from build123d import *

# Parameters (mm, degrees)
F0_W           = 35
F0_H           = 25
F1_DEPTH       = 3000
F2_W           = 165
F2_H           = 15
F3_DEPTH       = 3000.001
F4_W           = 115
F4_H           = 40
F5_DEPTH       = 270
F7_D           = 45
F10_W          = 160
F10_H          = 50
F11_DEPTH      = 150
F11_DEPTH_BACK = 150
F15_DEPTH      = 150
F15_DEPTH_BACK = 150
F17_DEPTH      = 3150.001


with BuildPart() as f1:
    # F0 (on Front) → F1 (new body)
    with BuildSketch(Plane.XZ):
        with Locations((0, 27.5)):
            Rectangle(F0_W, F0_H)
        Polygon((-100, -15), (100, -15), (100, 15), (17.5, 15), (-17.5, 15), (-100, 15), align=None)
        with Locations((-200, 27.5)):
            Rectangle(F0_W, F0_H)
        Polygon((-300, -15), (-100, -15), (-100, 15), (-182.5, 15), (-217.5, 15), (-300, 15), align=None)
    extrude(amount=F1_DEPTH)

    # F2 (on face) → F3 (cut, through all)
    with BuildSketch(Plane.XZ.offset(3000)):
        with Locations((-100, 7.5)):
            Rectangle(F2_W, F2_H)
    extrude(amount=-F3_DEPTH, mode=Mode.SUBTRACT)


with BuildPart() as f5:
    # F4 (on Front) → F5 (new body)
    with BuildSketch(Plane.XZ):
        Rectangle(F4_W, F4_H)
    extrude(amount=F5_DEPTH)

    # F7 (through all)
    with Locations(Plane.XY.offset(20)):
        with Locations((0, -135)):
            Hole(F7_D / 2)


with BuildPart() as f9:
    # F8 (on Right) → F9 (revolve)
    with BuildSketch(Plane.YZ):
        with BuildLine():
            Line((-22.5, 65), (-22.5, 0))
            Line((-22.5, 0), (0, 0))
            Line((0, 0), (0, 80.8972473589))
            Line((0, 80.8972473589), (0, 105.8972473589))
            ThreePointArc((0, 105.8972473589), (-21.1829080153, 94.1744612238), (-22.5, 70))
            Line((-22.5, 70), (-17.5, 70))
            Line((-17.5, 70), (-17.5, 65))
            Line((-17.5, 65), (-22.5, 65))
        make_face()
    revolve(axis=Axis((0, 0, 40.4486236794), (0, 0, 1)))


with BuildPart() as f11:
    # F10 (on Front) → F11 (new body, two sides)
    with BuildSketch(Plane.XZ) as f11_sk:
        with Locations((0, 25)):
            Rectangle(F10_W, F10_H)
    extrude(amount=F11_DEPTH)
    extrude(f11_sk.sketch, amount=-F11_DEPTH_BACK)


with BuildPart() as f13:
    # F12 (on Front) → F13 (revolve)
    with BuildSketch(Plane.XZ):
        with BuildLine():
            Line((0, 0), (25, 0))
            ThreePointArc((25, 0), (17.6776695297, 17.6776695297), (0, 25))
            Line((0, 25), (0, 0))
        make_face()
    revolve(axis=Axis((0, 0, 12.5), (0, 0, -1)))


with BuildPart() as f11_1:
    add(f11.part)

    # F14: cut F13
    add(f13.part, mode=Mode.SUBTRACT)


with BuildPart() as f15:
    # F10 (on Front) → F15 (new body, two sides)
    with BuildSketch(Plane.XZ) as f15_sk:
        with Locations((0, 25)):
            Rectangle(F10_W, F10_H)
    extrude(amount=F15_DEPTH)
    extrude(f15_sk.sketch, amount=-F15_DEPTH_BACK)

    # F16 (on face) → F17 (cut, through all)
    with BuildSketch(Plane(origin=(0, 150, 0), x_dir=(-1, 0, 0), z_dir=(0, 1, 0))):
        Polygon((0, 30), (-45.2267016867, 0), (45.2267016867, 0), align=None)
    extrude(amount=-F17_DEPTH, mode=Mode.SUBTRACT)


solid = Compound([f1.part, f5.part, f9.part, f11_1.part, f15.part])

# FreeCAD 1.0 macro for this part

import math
import FreeCAD as App
import Part
import Sketcher
from FreeCAD import Vector
Q = App.Units.Quantity


def add_polygon(sketch, points):
    """Adds a closed chain of lines whose ends are joined by coincident constraints."""
    first, n = sketch.GeometryCount, len(points)
    for a, b in zip(points, points[1:] + points[:1]):
        sketch.addGeometry(Part.LineSegment(App.Vector(*a, 0), App.Vector(*b, 0)), False)
    for i in range(n):
        sketch.addConstraint(Sketcher.Constraint("Coincident", first + i, 2, first + (i + 1) % n, 1))

doc = App.newDocument("Part")
body = doc.addObject("PartDesign::Body", "Body")

# Sketch on XZ plane
sketch1 = doc.addObject("Sketcher::SketchObject", "Sketch")
body.addObject(sketch1)
sketch1.AttachmentSupport = (doc.XZ_Plane, [""])
sketch1.MapMode = "FlatFace"
add_polygon(sketch1, [(-17.5, 40), (-17.5, 15), (-182.5, 15), (-182.5, 40), (-217.5, 40), (-217.5, 15), (-300, 15), (-300, -15), (100, -15), (100, 15), (17.5, 15), (17.5, 40)])  # lines 0-11
sketch1.addConstraint([
    Sketcher.Constraint("Vertical", 0),
    Sketcher.Constraint("Horizontal", 1),
    Sketcher.Constraint("Vertical", 2),
    Sketcher.Constraint("Horizontal", 3),
    Sketcher.Constraint("Vertical", 4),
    Sketcher.Constraint("Horizontal", 5),
    Sketcher.Constraint("Vertical", 6),
    Sketcher.Constraint("Horizontal", 7),
    Sketcher.Constraint("Vertical", 8),
    Sketcher.Constraint("Horizontal", 9),
    Sketcher.Constraint("Vertical", 10),
    Sketcher.Constraint("Horizontal", 11),
    Sketcher.Constraint("Symmetric", 0, 2, 9, 2, -2),
    Sketcher.Constraint("Horizontal", 1, 2, 4, 2),
    Sketcher.Constraint("Horizontal", 3, 2, 10, 2),
    Sketcher.Constraint("Equal", 5, 9),
    Sketcher.Constraint("Equal", 3, 11),
    Sketcher.Constraint("DistanceX", 1, 2, 1, 1, Q("165 mm")),
    Sketcher.Constraint("DistanceX", 3, 2, 3, 1, Q("35 mm")),
    Sketcher.Constraint("DistanceX", 7, 1, 7, 2, Q("400 mm")),
    Sketcher.Constraint("DistanceY", 0, 2, 0, 1, Q("25 mm")),
    Sketcher.Constraint("DistanceY", 6, 2, 6, 1, Q("30 mm")),
    Sketcher.Constraint("DistanceY", -1, 1, 0, 2, Q("15 mm")),
])
pad1 = doc.addObject("PartDesign::Pad", "Pad")
body.addObject(pad1)
pad1.Profile = sketch1
pad1.Length = 3000

# Sketch on XZ plane
sketch2 = doc.addObject("Sketcher::SketchObject", "Sketch001")
body.addObject(sketch2)
sketch2.AttachmentSupport = (doc.XZ_Plane, [""])
sketch2.MapMode = "FlatFace"
sketch2.AttachmentOffset = App.Placement(Vector(0, 0, 3000), App.Rotation())
add_polygon(sketch2, [(-182.5, 15), (-182.5, 0), (-17.5, 0), (-17.5, 15)])  # lines 0-3
sketch2.addConstraint([
    Sketcher.Constraint("Vertical", 0),
    Sketcher.Constraint("Horizontal", 1),
    Sketcher.Constraint("Vertical", 2),
    Sketcher.Constraint("Horizontal", 3),
    Sketcher.Constraint("PointOnObject", 0, 2, -1),
    Sketcher.Constraint("DistanceX", 1, 1, 1, 2, Q("165 mm")),
    Sketcher.Constraint("DistanceY", 0, 2, 0, 1, Q("15 mm")),
    Sketcher.Constraint("DistanceX", 0, 2, -1, 1, Q("182.5 mm")),
])
pocket1 = doc.addObject("PartDesign::Pocket", "Pocket")
body.addObject(pocket1)
pocket1.Profile = sketch2
pocket1.Type = "ThroughAll"
body2 = doc.addObject("PartDesign::Body", "Body001")

# Sketch on XZ plane
sketch3 = doc.addObject("Sketcher::SketchObject", "Sketch002")
body2.addObject(sketch3)
sketch3.AttachmentSupport = (doc.getObject("XZ_Plane001"), [""])
sketch3.MapMode = "FlatFace"
add_polygon(sketch3, [(-57.5, 20), (-57.5, -20), (57.5, -20), (57.5, 20)])  # lines 0-3
sketch3.addConstraint([
    Sketcher.Constraint("Vertical", 0),
    Sketcher.Constraint("Horizontal", 1),
    Sketcher.Constraint("Vertical", 2),
    Sketcher.Constraint("Horizontal", 3),
    Sketcher.Constraint("Symmetric", 0, 2, 2, 2, -1, 1),
    Sketcher.Constraint("DistanceX", 1, 1, 1, 2, Q("115 mm")),
    Sketcher.Constraint("DistanceY", 0, 2, 0, 1, Q("40 mm")),
])
pad2 = doc.addObject("PartDesign::Pad", "Pad001")
body2.addObject(pad2)
pad2.Profile = sketch3
pad2.Length = 270

# Sketch on XY plane
sketch4 = doc.addObject("Sketcher::SketchObject", "Sketch003")
body2.addObject(sketch4)
sketch4.AttachmentSupport = (doc.getObject("XY_Plane001"), [""])
sketch4.MapMode = "FlatFace"
sketch4.AttachmentOffset = App.Placement(Vector(0, 0, 20), App.Rotation())
sketch4.addGeometry(Part.Circle(Vector(0, -135, 0), Vector(0, 0, 1), 22.5), False)
sketch4.addConstraint([
    Sketcher.Constraint("PointOnObject", 0, 3, -2),
    Sketcher.Constraint("Diameter", 0, Q("45 mm")),
    Sketcher.Constraint("DistanceY", 0, 3, -1, 1, Q("135 mm")),
])
doc.recompute()
hole = doc.addObject("PartDesign::Hole", "Hole")
body2.addObject(hole)
hole.Profile = sketch4
hole.ThreadType = "None"
hole.Diameter = 45
hole.DepthType = "ThroughAll"
body3 = doc.addObject("PartDesign::Body", "Body002")

# Sketch on YZ plane
sketch5 = doc.addObject("Sketcher::SketchObject", "Sketch004")
body3.addObject(sketch5)
sketch5.AttachmentSupport = (doc.getObject("YZ_Plane002"), [""])
sketch5.MapMode = "FlatFace"
sketch5.addGeometry([
    Part.LineSegment(Vector(-22.5, 65, 0), Vector(-22.5, 0, 0)),  # 0
    Part.LineSegment(Vector(-22.5, 0, 0), Vector(0, 0, 0)),  # 1
    Part.LineSegment(Vector(0, 0, 0), Vector(0, 105.897247, 0)),  # 2
    Part.ArcOfCircle(Part.Circle(Vector(0, 80.897247, 0), Vector(0, 0, 1), 25), math.radians(90), math.radians(205.841933)),  # 3
    Part.LineSegment(Vector(-22.5, 70, 0), Vector(-17.5, 70, 0)),  # 4
    Part.LineSegment(Vector(-17.5, 70, 0), Vector(-17.5, 65, 0)),  # 5
    Part.LineSegment(Vector(-17.5, 65, 0), Vector(-22.5, 65, 0)),  # 6
], False)
sketch5.addConstraint([
    Sketcher.Constraint("Coincident", 0, 2, 1, 1),
    Sketcher.Constraint("Coincident", 1, 2, 2, 1),
    Sketcher.Constraint("Coincident", 2, 2, 3, 1),
    Sketcher.Constraint("Coincident", 3, 2, 4, 1),
    Sketcher.Constraint("Coincident", 4, 2, 5, 1),
    Sketcher.Constraint("Coincident", 5, 2, 6, 1),
    Sketcher.Constraint("Coincident", 6, 2, 0, 1),
    Sketcher.Constraint("Vertical", 0),
    Sketcher.Constraint("Horizontal", 1),
    Sketcher.Constraint("Vertical", 2),
    Sketcher.Constraint("Horizontal", 4),
    Sketcher.Constraint("Vertical", 5),
    Sketcher.Constraint("Horizontal", 6),
    Sketcher.Constraint("Coincident", 1, 2, -1, 1),
    Sketcher.Constraint("PointOnObject", 3, 3, -2),
    Sketcher.Constraint("Vertical", 0, 2, 3, 2),
    Sketcher.Constraint("Equal", 6, 5),
    Sketcher.Constraint("Radius", 3, Q("25 mm")),
    Sketcher.Constraint("DistanceX", 4, 1, 4, 2, Q("5 mm")),
    Sketcher.Constraint("DistanceY", 0, 2, 0, 1, Q("65 mm")),
    Sketcher.Constraint("DistanceX", 1, 1, 1, 2, Q("22.5 mm")),
])
revolution = doc.addObject("PartDesign::Revolution", "Revolution")
body3.addObject(revolution)
revolution.Profile = sketch5
revolution.ReferenceAxis = (sketch5, ["V_Axis"])
revolution.Angle = 360
body4 = doc.addObject("PartDesign::Body", "Body003")

# Sketch on XZ plane
sketch6 = doc.addObject("Sketcher::SketchObject", "Sketch005")
body4.addObject(sketch6)
sketch6.AttachmentSupport = (doc.getObject("XZ_Plane003"), [""])
sketch6.MapMode = "FlatFace"
add_polygon(sketch6, [(-80, 50), (-80, 0), (80, 0), (80, 50)])  # lines 0-3
sketch6.addConstraint([
    Sketcher.Constraint("Vertical", 0),
    Sketcher.Constraint("Horizontal", 1),
    Sketcher.Constraint("Vertical", 2),
    Sketcher.Constraint("Horizontal", 3),
    Sketcher.Constraint("Symmetric", 0, 2, 1, 2, -1, 1),
    Sketcher.Constraint("DistanceX", 1, 1, 1, 2, Q("160 mm")),
    Sketcher.Constraint("DistanceY", 0, 2, 0, 1, Q("50 mm")),
])
pad3 = doc.addObject("PartDesign::Pad", "Pad002")
body4.addObject(pad3)
pad3.Profile = sketch6
pad3.Type = "TwoLengths"
pad3.Length = 150
pad3.Length2 = 150
body5 = doc.addObject("PartDesign::Body", "Body004")

# Sketch on XZ plane
sketch7 = doc.addObject("Sketcher::SketchObject", "Sketch006")
body5.addObject(sketch7)
sketch7.AttachmentSupport = (doc.getObject("XZ_Plane004"), [""])
sketch7.MapMode = "FlatFace"
sketch7.addGeometry([
    Part.LineSegment(Vector(0, 0, 0), Vector(25, 0, 0)),
    Part.ArcOfCircle(Part.Circle(Vector(0, 0, 0), Vector(0, 0, 1), 25), math.radians(0), math.radians(90)),
    Part.LineSegment(Vector(0, 25, 0), Vector(0, 0, 0)),
], False)
sketch7.addConstraint([
    Sketcher.Constraint("Coincident", 0, 2, 1, 1),
    Sketcher.Constraint("Coincident", 1, 2, 2, 1),
    Sketcher.Constraint("Coincident", 2, 2, 0, 1),
    Sketcher.Constraint("Horizontal", 0),
    Sketcher.Constraint("Vertical", 2),
    Sketcher.Constraint("Coincident", 1, 3, -1, 1),
    Sketcher.Constraint("Coincident", 2, 2, -1, 1),
    Sketcher.Constraint("Radius", 1, Q("25 mm")),
])
revolution2 = doc.addObject("PartDesign::Revolution", "Revolution001")
body5.addObject(revolution2)
revolution2.Profile = sketch7
revolution2.ReferenceAxis = (sketch7, ["V_Axis"])
revolution2.Angle = 360
doc.recompute()

boolean = doc.addObject("PartDesign::Boolean", "Boolean")
body4.addObject(boolean)
boolean.Type = "Cut"
boolean.addObjects([body5])
body6 = doc.addObject("PartDesign::Body", "Body005")

# Sketch on XZ plane
sketch8 = doc.addObject("Sketcher::SketchObject", "Sketch007")
body6.addObject(sketch8)
sketch8.AttachmentSupport = (doc.getObject("XZ_Plane005"), [""])
sketch8.MapMode = "FlatFace"
add_polygon(sketch8, [(-80, 50), (-80, 0), (80, 0), (80, 50)])  # lines 0-3
sketch8.addConstraint([
    Sketcher.Constraint("Vertical", 0),
    Sketcher.Constraint("Horizontal", 1),
    Sketcher.Constraint("Vertical", 2),
    Sketcher.Constraint("Horizontal", 3),
    Sketcher.Constraint("Symmetric", 0, 2, 1, 2, -1, 1),
    Sketcher.Constraint("DistanceX", 1, 1, 1, 2, Q("160 mm")),
    Sketcher.Constraint("DistanceY", 0, 2, 0, 1, Q("50 mm")),
])
pad4 = doc.addObject("PartDesign::Pad", "Pad003")
body6.addObject(pad4)
pad4.Profile = sketch8
pad4.Type = "TwoLengths"
pad4.Length = 150
pad4.Length2 = 150

# Sketch on XZ plane
sketch9 = doc.addObject("Sketcher::SketchObject", "Sketch008")
body6.addObject(sketch9)
sketch9.AttachmentSupport = (doc.getObject("XZ_Plane005"), [""])
sketch9.MapMode = "FlatFace"
sketch9.AttachmentOffset = App.Placement(Vector(0, 0, -150), App.Rotation())
add_polygon(sketch9, [(0, 30), (45.226702, 0), (-45.226702, 0)])  # lines 0-2
sketch9.addConstraint([
    Sketcher.Constraint("Horizontal", 1),
    Sketcher.Constraint("Symmetric", 0, 2, 1, 2, -1, 1),
    Sketcher.Constraint("PointOnObject", 2, 2, -2),
    Sketcher.Constraint("DistanceY", -1, 1, 2, 2, Q("30 mm")),
    Sketcher.Constraint("DistanceX", -1, 1, 0, 2, Q("45.226702 mm")),
])
pocket2 = doc.addObject("PartDesign::Pocket", "Pocket001")
body6.addObject(pocket2)
pocket2.Profile = sketch9
pocket2.Type = "ThroughAll"
pocket2.Reversed = True

doc.recompute()
